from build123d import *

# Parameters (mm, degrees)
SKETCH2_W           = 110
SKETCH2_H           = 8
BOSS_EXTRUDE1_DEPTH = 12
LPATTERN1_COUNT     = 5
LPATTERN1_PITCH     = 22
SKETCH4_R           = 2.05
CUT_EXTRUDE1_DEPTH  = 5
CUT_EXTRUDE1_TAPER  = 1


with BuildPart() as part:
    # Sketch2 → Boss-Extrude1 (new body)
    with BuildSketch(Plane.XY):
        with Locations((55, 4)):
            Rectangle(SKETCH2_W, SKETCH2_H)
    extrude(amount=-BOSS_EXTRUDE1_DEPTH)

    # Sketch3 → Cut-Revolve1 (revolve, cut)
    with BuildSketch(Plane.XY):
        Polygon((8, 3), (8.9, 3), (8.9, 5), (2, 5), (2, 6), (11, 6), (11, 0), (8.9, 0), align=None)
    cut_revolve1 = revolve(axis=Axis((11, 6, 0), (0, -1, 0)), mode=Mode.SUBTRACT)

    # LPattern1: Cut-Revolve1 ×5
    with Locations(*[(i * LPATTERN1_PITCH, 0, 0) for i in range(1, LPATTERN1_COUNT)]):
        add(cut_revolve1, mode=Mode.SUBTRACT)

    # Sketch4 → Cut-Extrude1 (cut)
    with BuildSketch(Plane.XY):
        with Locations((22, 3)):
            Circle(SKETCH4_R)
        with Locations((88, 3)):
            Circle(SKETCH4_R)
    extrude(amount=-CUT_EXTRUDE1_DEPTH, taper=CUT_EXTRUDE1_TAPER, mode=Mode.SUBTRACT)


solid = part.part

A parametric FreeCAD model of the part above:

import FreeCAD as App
import Part
import Sketcher
from FreeCAD import Vector

doc = App.newDocument("Part")
body = doc.addObject("PartDesign::Body", "Body")

sketch1 = body.newObject("Sketcher::SketchObject", "Sketch")
sketch1.AttachmentSupport = (doc.getObject("XY_Plane"), [""])
sketch1.MapMode = "FlatFace"
sketch1.addGeometry(Part.LineSegment(Vector(0, 8, 0), Vector(0, 0, 0)), False)
sketch1.addGeometry(Part.LineSegment(Vector(0, 0, 0), Vector(110, 0, 0)), False)
sketch1.addGeometry(Part.LineSegment(Vector(110, 0, 0), Vector(110, 8, 0)), False)
sketch1.addGeometry(Part.LineSegment(Vector(110, 8, 0), Vector(0, 8, 0)), False)
sketch1.addConstraint(Sketcher.Constraint("Coincident", 0, 2, 1, 1))
sketch1.addConstraint(Sketcher.Constraint("Coincident", 1, 2, 2, 1))
sketch1.addConstraint(Sketcher.Constraint("Coincident", 2, 2, 3, 1))
sketch1.addConstraint(Sketcher.Constraint("Coincident", 3, 2, 0, 1))
sketch1.addConstraint(Sketcher.Constraint("Vertical", 0))
sketch1.addConstraint(Sketcher.Constraint("Horizontal", 1))
sketch1.addConstraint(Sketcher.Constraint("Vertical", 2))
sketch1.addConstraint(Sketcher.Constraint("Horizontal", 3))
sketch1.addConstraint(Sketcher.Constraint("Coincident", 0, 2, -1, 1))
sketch1.addConstraint(Sketcher.Constraint("DistanceX", 1, 1, 1, 2, 110.0))
sketch1.addConstraint(Sketcher.Constraint("DistanceY", 0, 2, 0, 1, 8.0))
pad1 = body.newObject("PartDesign::Pad", "Pad")
pad1.Profile = sketch1
pad1.Length = 12
pad1.Reversed = True

sketch2 = body.newObject("Sketcher::SketchObject", "Sketch001")
sketch2.AttachmentSupport = (doc.getObject("XY_Plane"), [""])
sketch2.MapMode = "FlatFace"
sketch2.addGeometry(Part.LineSegment(Vector(8.9, 3, 0), Vector(8, 3, 0)), False)
sketch2.addGeometry(Part.LineSegment(Vector(8, 3, 0), Vector(8.9, 0, 0)), False)
sketch2.addGeometry(Part.LineSegment(Vector(8.9, 0, 0), Vector(11, 0, 0)), False)
sketch2.addGeometry(Part.LineSegment(Vector(11, 0, 0), Vector(11, 6, 0)), False)
sketch2.addGeometry(Part.LineSegment(Vector(11, 6, 0), Vector(2, 6, 0)), False)
sketch2.addGeometry(Part.LineSegment(Vector(2, 6, 0), Vector(2, 5, 0)), False)
sketch2.addGeometry(Part.LineSegment(Vector(2, 5, 0), Vector(8.9, 5, 0)), False)
sketch2.addGeometry(Part.LineSegment(Vector(8.9, 5, 0), Vector(8.9, 3, 0)), False)
sketch2.addGeometry(Part.LineSegment(Vector(11, 6, 0), Vector(11, 0, 0)), True)
sketch2.addConstraint(Sketcher.Constraint("Coincident", 0, 2, 1, 1))
sketch2.addConstraint(Sketcher.Constraint("Coincident", 1, 2, 2, 1))
sketch2.addConstraint(Sketcher.Constraint("Coincident", 2, 2, 3, 1))
sketch2.addConstraint(Sketcher.Constraint("Coincident", 3, 2, 4, 1))
sketch2.addConstraint(Sketcher.Constraint("Coincident", 4, 2, 5, 1))
sketch2.addConstraint(Sketcher.Constraint("Coincident", 5, 2, 6, 1))
sketch2.addConstraint(Sketcher.Constraint("Coincident", 6, 2, 7, 1))
sketch2.addConstraint(Sketcher.Constraint("Coincident", 7, 2, 0, 1))
sketch2.addConstraint(Sketcher.Constraint("Horizontal", 0))
sketch2.addConstraint(Sketcher.Constraint("Horizontal", 2))
sketch2.addConstraint(Sketcher.Constraint("Vertical", 3))
sketch2.addConstraint(Sketcher.Constraint("Horizontal", 4))
sketch2.addConstraint(Sketcher.Constraint("Vertical", 5))
sketch2.addConstraint(Sketcher.Constraint("Horizontal", 6))
sketch2.addConstraint(Sketcher.Constraint("Vertical", 7))
sketch2.addConstraint(Sketcher.Constraint("Vertical", 8))
sketch2.addConstraint(Sketcher.Constraint("Coincident", 8, 1, 3, 2))
sketch2.addConstraint(Sketcher.Constraint("PointOnObject", 1, 2, -1))
sketch2.addConstraint(Sketcher.Constraint("PointOnObject", 8, 2, -1))
sketch2.addConstraint(Sketcher.Constraint("Vertical", 1, 2, 6, 2))
sketch2.addConstraint(Sketcher.Constraint("DistanceX", 4, 2, 4, 1, 9.0))
sketch2.addConstraint(Sketcher.Constraint("DistanceY", 3, 1, 3, 2, 6.0))
sketch2.addConstraint(Sketcher.Constraint("DistanceY", 5, 2, 5, 1, 1.0))
sketch2.addConstraint(Sketcher.Constraint("DistanceY", 7, 2, 7, 1, 2.0))
sketch2.addConstraint(Sketcher.Constraint("DistanceX", 0, 2, 0, 1, 0.9))
sketch2.addConstraint(Sketcher.Constraint("DistanceX", 2, 1, 2, 2, 2.1))
sketch2.addConstraint(Sketcher.Constraint("DistanceX", -1, 1, 0, 2, 8.0))
groove = body.newObject("PartDesign::Groove", "Groove")
groove.Profile = sketch2
groove.ReferenceAxis = (sketch2, ["Axis0"])
groove.Angle = 360
doc.recompute()

linearpattern = body.newObject("PartDesign::LinearPattern", "LinearPattern")
linearpattern.Originals = [groove]
linearpattern.Direction = (doc.getObject("X_Axis"), [""])
linearpattern.Mode = "offset"
linearpattern.Offset = 22
linearpattern.Occurrences = 5
body.Tip = linearpattern

sketch3 = body.newObject("Sketcher::SketchObject", "Sketch002")
sketch3.AttachmentSupport = (doc.getObject("XY_Plane"), [""])
sketch3.MapMode = "FlatFace"
sketch3.addGeometry(Part.Circle(Vector(22, 3, 0), Vector(0, 0, 1), 2.05), False)
sketch3.addGeometry(Part.Circle(Vector(88, 3, 0), Vector(0, 0, 1), 2.05), False)
sketch3.addConstraint(Sketcher.Constraint("Equal", 0, 1))
sketch3.addConstraint(Sketcher.Constraint("Horizontal", 0, 3, 1, 3))
sketch3.addConstraint(Sketcher.Constraint("Diameter", 0, 4.1))
sketch3.addConstraint(Sketcher.Constraint("DistanceX", -1, 1, 0, 3, 22.0))
sketch3.addConstraint(Sketcher.Constraint("DistanceY", -1, 1, 0, 3, 3.0))
sketch3.addConstraint(Sketcher.Constraint("DistanceX", -1, 1, 1, 3, 88.0))
pocket1 = body.newObject("PartDesign::Pocket", "Pocket")
pocket1.Profile = sketch3
pocket1.Length = 5
pocket1.TaperAngle = -1

doc.recompute()
